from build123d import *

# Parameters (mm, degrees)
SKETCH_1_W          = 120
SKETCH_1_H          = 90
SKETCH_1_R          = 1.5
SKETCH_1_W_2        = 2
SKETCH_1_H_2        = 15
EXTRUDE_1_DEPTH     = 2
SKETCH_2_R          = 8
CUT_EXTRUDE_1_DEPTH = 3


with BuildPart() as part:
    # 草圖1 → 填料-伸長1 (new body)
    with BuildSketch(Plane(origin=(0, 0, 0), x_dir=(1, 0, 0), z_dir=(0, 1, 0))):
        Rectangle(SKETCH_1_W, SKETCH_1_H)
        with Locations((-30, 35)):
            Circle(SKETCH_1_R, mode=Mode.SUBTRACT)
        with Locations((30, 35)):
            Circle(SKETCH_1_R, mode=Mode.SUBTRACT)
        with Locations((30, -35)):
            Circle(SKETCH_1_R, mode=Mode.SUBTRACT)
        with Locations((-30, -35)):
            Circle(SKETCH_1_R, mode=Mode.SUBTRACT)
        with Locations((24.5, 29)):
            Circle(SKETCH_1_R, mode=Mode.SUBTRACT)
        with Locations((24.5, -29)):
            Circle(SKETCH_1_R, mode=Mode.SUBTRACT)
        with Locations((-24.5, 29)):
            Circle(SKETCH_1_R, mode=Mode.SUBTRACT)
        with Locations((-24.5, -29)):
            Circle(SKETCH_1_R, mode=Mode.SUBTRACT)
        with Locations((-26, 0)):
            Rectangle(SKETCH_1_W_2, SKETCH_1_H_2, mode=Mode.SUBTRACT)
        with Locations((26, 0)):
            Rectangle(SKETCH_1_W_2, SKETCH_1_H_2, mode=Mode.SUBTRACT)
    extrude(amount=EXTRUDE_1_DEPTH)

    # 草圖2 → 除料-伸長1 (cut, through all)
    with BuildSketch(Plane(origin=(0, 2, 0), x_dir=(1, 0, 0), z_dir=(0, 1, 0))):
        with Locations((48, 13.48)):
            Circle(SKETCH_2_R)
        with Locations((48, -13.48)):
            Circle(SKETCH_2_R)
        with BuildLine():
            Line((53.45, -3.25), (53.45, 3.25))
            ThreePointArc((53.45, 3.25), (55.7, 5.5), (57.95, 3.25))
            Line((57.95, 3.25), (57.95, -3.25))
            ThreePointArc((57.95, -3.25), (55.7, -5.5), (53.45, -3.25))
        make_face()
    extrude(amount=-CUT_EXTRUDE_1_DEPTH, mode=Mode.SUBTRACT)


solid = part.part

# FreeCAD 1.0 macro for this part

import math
import FreeCAD as App
import Part
import Sketcher

V = App.Vector


def add_polygon(sketch, points):
    """Adds a closed chain of lines whose ends are joined by coincident constraints."""
    first, n = sketch.GeometryCount, len(points)
    for a, b in zip(points, points[1:] + points[:1]):
        sketch.addGeometry(Part.LineSegment(App.Vector(*a, 0), App.Vector(*b, 0)), False)
    for i in range(n):
        sketch.addConstraint(Sketcher.Constraint("Coincident", first + i, 2, first + (i + 1) % n, 1))

doc = App.newDocument("Part")
body = doc.addObject("PartDesign::Body", "Body")

# Sketch on XZ plane
sketch1 = body.newObject("Sketcher::SketchObject", "Sketch")
sketch1.AttachmentSupport = (doc.getObject("XZ_Plane"), [""])
sketch1.MapMode = "FlatFace"
add_polygon(sketch1, [(-60, -45), (-60, 45), (60, 45), (60, -45)])  # lines 0-3
sketch1.addGeometry(Part.Circle(V(-30, 35, 0), V(0, 0, 1), 1.5), False)  # 4
sketch1.addGeometry(Part.Circle(V(-24.5, 29, 0), V(0, 0, 1), 1.5), False)  # 5
sketch1.addGeometry(Part.Circle(V(30, 35, 0), V(0, 0, 1), 1.5), False)  # 6
sketch1.addGeometry(Part.Circle(V(24.5, 29, 0), V(0, 0, 1), 1.5), False)  # 7
add_polygon(sketch1, [(-25, 7.5), (-27, 7.5), (-27, -7.5), (-25, -7.5)])  # lines 8-11
sketch1.addGeometry(Part.Circle(V(-24.5, -29, 0), V(0, 0, 1), 1.5), False)  # 12
sketch1.addGeometry(Part.Circle(V(-30, -35, 0), V(0, 0, 1), 1.5), False)  # 13
add_polygon(sketch1, [(27, 7.5), (25, 7.5), (25, -7.5), (27, -7.5)])  # lines 14-17
sketch1.addGeometry(Part.Circle(V(24.5, -29, 0), V(0, 0, 1), 1.5), False)  # 18
sketch1.addGeometry(Part.Circle(V(30, -35, 0), V(0, 0, 1), 1.5), False)  # 19
sketch1.addConstraint([
    Sketcher.Constraint("Vertical", 0),
    Sketcher.Constraint("Horizontal", 1),
    Sketcher.Constraint("Vertical", 2),
    Sketcher.Constraint("Horizontal", 3),
    Sketcher.Constraint("Horizontal", 8),
    Sketcher.Constraint("Vertical", 9),
    Sketcher.Constraint("Horizontal", 10),
    Sketcher.Constraint("Vertical", 11),
    Sketcher.Constraint("Horizontal", 14),
    Sketcher.Constraint("Vertical", 15),
    Sketcher.Constraint("Horizontal", 16),
    Sketcher.Constraint("Vertical", 17),
    Sketcher.Constraint("Equal", 4, 5),
    Sketcher.Constraint("Equal", 5, 6),
    Sketcher.Constraint("Equal", 6, 7),
    Sketcher.Constraint("Equal", 7, 12),
    Sketcher.Constraint("Equal", 12, 13),
    Sketcher.Constraint("Equal", 13, 18),
    Sketcher.Constraint("Equal", 18, 19),
    Sketcher.Constraint("Symmetric", 7, 3, 12, 3, -1, 1),
    Sketcher.Constraint("Symmetric", 6, 3, 13, 3, -1, 1),
    Sketcher.Constraint("Symmetric", 5, 3, 18, 3, -1, 1),
    Sketcher.Constraint("Symmetric", 4, 3, 19, 3, -1, 1),
    Sketcher.Constraint("Symmetric", 0, 2, 2, 2, -1, 1),
    Sketcher.Constraint("Symmetric", 10, 2, 14, 2, -1, 1),
    Sketcher.Constraint("Symmetric", 8, 2, 16, 2, -1, 1),
    Sketcher.Constraint("Symmetric", 4, 3, 6, 3, -2),
    Sketcher.Constraint("Symmetric", 5, 3, 7, 3, -2),
    Sketcher.Constraint("Horizontal", 11, 2, 14, 2),
    Sketcher.Constraint("Diameter", 4, 3.0),
    Sketcher.Constraint("DistanceX", 1, 1, 1, 2, 120.0),
    Sketcher.Constraint("DistanceX", 8, 2, 8, 1, 2.0),
    Sketcher.Constraint("DistanceY", 0, 1, 0, 2, 90.0),
    Sketcher.Constraint("DistanceY", 9, 2, 9, 1, 15.0),
    Sketcher.Constraint("DistanceX", 4, 3, -1, 1, 30.0),
    Sketcher.Constraint("DistanceY", -1, 1, 4, 3, 35.0),
    Sketcher.Constraint("DistanceY", -1, 1, 5, 3, 29.0),
    Sketcher.Constraint("DistanceX", 8, 2, -1, 1, 27.0),
    Sketcher.Constraint("DistanceX", 5, 3, 7, 3, 49.0),
])
pad1 = body.newObject("PartDesign::Pad", "Pad")
pad1.Profile = sketch1
pad1.Length = 2
pad1.Reversed = True

# Sketch on XZ plane
sketch2 = body.newObject("Sketcher::SketchObject", "Sketch001")
sketch2.AttachmentSupport = (doc.getObject("XZ_Plane"), [""])
sketch2.MapMode = "FlatFace"
sketch2.AttachmentOffset = App.Placement(V(0, 0, -2), App.Rotation())
sketch2.addGeometry([
    Part.Circle(V(48, -13.5, 0), V(0, 0, 1), 8),  # 0
    Part.Circle(V(48, 13.5, 0), V(0, 0, 1), 8),  # 1
    Part.LineSegment(V(53.5, -3.2, 0), V(53.5, 3.2, 0)),  # 2
    Part.ArcOfCircle(Part.Circle(V(55.7, 3.2, 0), V(0, 0, 1), 2.2), math.radians(0), math.radians(180)),  # 3
    Part.LineSegment(V(58, 3.2, 0), V(58, -3.2, 0)),  # 4
    Part.ArcOfCircle(Part.Circle(V(55.7, -3.2, 0), V(0, 0, 1), 2.2), math.radians(180), math.radians(360)),  # 5
], False)
sketch2.addConstraint([
    Sketcher.Constraint("Tangent", 2, 2, 3, 2),
    Sketcher.Constraint("Tangent", 3, 1, 4, 1),
    Sketcher.Constraint("Tangent", 4, 2, 5, 2),
    Sketcher.Constraint("Tangent", 5, 1, 2, 1),
    Sketcher.Constraint("Vertical", 2),
    Sketcher.Constraint("Vertical", 4),
    Sketcher.Constraint("Equal", 0, 1),
    Sketcher.Constraint("Symmetric", 0, 3, 1, 3, -1),
    Sketcher.Constraint("Diameter", 0, 16.0),
    Sketcher.Constraint("Radius", 3, 2.25),
    Sketcher.Constraint("DistanceY", 2, 1, 2, 2, 6.5),
    Sketcher.Constraint("DistanceX", -1, 1, 0, 3, 48.0),
    Sketcher.Constraint("DistanceX", -1, 1, 3, 3, 55.7),
    Sketcher.Constraint("DistanceY", 0, 3, -1, 1, 13.48),
    Sketcher.Constraint("DistanceY", -1, 1, 3, 3, 3.25),
])
pocket1 = body.newObject("PartDesign::Pocket", "Pocket")
pocket1.Profile = sketch2
pocket1.Type = "ThroughAll"
pocket1.Reversed = True

doc.recompute()
